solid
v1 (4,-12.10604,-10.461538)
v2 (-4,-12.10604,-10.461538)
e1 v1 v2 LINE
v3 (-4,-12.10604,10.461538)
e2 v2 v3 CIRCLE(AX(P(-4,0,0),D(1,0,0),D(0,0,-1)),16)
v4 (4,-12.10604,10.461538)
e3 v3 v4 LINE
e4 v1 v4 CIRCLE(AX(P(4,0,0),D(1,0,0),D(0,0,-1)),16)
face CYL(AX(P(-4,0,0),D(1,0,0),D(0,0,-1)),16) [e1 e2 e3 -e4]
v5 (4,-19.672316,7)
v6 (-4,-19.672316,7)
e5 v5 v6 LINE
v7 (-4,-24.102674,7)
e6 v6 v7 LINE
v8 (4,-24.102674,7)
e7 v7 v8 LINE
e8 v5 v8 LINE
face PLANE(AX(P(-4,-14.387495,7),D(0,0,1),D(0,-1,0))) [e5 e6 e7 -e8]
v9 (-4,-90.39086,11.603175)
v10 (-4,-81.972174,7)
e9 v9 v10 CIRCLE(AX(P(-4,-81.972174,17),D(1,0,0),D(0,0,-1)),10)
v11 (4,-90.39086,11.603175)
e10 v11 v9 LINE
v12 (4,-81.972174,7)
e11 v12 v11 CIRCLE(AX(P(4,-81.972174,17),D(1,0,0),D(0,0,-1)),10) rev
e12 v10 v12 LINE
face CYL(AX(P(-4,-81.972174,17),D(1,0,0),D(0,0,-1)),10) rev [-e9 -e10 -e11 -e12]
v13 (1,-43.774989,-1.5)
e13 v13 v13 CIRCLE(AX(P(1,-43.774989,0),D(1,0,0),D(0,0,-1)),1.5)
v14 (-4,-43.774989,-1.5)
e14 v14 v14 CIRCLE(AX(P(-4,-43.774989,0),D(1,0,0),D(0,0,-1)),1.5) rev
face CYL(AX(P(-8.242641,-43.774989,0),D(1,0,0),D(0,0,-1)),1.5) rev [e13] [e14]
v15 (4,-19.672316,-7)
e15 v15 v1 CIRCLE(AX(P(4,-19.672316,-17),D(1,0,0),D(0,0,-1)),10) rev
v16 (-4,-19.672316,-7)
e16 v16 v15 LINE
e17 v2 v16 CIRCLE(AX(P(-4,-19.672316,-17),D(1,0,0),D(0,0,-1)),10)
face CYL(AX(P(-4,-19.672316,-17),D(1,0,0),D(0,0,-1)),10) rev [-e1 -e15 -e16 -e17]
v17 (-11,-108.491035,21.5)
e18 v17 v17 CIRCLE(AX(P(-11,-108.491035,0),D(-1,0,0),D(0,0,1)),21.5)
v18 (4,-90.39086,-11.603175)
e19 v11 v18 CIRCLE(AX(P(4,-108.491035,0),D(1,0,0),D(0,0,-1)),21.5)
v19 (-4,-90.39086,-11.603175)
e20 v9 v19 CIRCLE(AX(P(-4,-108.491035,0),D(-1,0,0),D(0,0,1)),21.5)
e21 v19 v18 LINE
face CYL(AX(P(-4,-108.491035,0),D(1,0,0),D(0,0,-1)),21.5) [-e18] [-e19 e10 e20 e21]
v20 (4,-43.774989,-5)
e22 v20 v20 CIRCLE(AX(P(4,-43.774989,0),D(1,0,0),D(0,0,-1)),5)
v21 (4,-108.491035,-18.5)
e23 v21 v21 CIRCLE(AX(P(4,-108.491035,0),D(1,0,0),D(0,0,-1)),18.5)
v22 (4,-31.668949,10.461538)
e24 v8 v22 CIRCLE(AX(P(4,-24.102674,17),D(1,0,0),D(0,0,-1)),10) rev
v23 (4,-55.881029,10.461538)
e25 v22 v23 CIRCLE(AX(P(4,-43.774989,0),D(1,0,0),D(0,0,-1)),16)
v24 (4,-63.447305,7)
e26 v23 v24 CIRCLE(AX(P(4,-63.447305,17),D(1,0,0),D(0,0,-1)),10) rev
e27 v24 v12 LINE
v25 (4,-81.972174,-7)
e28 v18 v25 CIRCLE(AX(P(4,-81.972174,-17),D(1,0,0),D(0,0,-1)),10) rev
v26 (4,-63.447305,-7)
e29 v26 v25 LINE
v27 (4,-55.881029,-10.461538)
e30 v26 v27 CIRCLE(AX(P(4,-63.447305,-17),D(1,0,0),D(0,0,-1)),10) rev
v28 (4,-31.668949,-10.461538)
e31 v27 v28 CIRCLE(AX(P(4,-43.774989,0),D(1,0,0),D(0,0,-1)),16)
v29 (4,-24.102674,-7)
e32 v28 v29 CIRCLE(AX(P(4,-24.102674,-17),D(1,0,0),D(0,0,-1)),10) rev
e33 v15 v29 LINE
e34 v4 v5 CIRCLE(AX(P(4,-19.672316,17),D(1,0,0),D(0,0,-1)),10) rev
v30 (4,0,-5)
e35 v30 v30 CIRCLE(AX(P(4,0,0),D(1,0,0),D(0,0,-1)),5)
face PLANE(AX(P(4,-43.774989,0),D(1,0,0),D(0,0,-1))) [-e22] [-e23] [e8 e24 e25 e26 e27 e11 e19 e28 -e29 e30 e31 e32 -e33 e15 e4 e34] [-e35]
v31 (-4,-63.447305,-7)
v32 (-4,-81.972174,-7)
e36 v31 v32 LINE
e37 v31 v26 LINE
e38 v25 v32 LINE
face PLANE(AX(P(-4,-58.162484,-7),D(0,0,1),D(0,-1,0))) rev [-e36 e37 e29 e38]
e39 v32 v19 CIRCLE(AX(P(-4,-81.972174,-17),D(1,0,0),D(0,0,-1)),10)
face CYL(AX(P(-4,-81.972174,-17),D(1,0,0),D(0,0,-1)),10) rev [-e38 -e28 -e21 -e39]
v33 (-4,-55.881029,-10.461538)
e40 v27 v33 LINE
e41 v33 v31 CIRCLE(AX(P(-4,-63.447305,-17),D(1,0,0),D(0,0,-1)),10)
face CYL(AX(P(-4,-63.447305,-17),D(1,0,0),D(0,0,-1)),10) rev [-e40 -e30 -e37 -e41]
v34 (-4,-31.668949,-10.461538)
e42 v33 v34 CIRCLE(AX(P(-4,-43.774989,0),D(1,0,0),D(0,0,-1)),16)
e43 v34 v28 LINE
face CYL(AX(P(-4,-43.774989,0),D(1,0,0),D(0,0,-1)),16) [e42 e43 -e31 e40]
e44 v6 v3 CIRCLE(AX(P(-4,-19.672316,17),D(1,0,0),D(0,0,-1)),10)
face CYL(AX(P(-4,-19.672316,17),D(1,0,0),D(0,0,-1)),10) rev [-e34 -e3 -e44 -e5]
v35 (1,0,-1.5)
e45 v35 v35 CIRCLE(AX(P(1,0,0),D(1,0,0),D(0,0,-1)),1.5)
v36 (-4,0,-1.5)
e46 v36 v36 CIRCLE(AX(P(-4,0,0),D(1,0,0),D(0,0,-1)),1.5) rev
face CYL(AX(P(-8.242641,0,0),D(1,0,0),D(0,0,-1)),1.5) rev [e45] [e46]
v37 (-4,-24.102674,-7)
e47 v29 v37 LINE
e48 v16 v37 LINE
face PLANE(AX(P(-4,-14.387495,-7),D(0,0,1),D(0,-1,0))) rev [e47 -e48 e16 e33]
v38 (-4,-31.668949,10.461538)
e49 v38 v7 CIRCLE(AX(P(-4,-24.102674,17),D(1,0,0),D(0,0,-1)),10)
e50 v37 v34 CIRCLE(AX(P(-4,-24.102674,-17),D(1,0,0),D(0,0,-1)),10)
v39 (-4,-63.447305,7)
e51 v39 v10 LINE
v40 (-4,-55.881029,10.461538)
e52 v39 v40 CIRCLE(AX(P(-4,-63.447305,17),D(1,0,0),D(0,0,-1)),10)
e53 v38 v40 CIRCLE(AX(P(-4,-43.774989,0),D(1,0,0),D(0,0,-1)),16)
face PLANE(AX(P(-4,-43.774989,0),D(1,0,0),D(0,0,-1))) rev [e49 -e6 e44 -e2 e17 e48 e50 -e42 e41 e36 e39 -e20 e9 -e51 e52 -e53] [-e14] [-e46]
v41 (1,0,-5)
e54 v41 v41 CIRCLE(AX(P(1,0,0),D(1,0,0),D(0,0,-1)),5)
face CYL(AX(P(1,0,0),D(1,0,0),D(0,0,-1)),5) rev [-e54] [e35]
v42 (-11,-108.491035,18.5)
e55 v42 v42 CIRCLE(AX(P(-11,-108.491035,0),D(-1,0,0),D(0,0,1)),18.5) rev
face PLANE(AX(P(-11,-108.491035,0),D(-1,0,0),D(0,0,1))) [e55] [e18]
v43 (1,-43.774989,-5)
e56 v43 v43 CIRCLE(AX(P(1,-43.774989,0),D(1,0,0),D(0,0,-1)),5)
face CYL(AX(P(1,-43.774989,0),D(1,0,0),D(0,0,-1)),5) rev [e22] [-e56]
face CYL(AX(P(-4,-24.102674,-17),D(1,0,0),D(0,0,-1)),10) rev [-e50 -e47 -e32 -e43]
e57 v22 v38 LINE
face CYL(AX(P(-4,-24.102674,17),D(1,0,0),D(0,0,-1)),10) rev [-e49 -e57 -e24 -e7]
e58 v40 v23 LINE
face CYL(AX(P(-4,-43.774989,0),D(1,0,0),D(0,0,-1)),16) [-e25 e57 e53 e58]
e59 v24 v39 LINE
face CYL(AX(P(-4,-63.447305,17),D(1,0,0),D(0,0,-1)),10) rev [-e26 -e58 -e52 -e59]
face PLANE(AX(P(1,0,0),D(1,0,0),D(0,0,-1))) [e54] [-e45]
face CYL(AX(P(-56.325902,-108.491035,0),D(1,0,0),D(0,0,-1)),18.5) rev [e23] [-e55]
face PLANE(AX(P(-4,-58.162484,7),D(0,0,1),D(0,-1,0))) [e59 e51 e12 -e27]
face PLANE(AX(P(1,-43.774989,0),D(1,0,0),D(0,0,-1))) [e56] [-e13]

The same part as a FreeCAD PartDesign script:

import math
import FreeCAD as App
import Part
import Sketcher


def edges_at(feature, points):
    """Names of the edges that pass closest to the given points."""
    edges = feature.Shape.Edges
    near = lambda p: min(range(len(edges)), key=lambda i: edges[i].distToShape(Part.Vertex(*p))[0])
    return sorted({f"Edge{near(p) + 1}" for p in points})

doc = App.newDocument("Part")
params = doc.addObject("Spreadsheet::Sheet", "Params")
for row, (alias, value) in enumerate([
    ("sketch1_radius", "16 mm"),
    ("sketch1_radius2", "21.5 mm"),
    ("sketch1_width", "15 mm"),
    ("sketch1_width2", "30 mm"),
    ("pad1_length", "4 mm"),
    ("pad1_length2", "4 mm"),
    ("fillet_radius", "10 mm"),
    ("sketch2_diameter", "10 mm"),
    ("pocket1_length", "3 mm"),
    ("sketch3_diameter", "3 mm"),
    ("pocket2_length", "5 mm"),
    ("sketch4_diameter", "37 mm"),
    ("pocket3_length", "8 mm"),
    ("sketch5_diameter", "43 mm"),
    ("sketch5_diameter2", "37 mm"),
    ("pad2_length", "7 mm"),
], start=1):
    params.set(f"A{row}", alias)
    params.set(f"B{row}", "=" + value)
    params.setAlias(f"B{row}", alias)

body = doc.addObject("PartDesign::Body", "Body")

# Sketch on YZ plane
sketch1 = doc.addObject("Sketcher::SketchObject", "Sketch")
body.addObject(sketch1)
sketch1.AttachmentSupport = (doc.YZ_Plane, [""])
sketch1.MapMode = "FlatFace"
sketch1.addGeometry(Part.LineSegment(App.Vector(-14, 7, 0), App.Vector(-29, 7, 0)), False)
sketch1.addGeometry(Part.ArcOfCircle(Part.Circle(App.Vector(-44, 0, 0), App.Vector(0, 0, 1), 16), math.radians(26), math.radians(154)), False)
sketch1.addGeometry(Part.LineSegment(App.Vector(-58, 7, 0), App.Vector(-88, 7, 0)), False)
sketch1.addGeometry(Part.ArcOfCircle(Part.Circle(App.Vector(-108, 0, 0), App.Vector(0, 0, 1), 22), math.radians(19), math.radians(341)), False)
sketch1.addGeometry(Part.LineSegment(App.Vector(-88, -7, 0), App.Vector(-58, -7, 0)), False)
sketch1.addGeometry(Part.ArcOfCircle(Part.Circle(App.Vector(-44, 0, 0), App.Vector(0, 0, 1), 16), math.radians(-154), math.radians(-26)), False)
sketch1.addGeometry(Part.LineSegment(App.Vector(-29, -7, 0), App.Vector(-14, -7, 0)), False)
sketch1.addGeometry(Part.ArcOfCircle(Part.Circle(App.Vector(0, 0, 0), App.Vector(0, 0, 1), 16), math.radians(-154), math.radians(154)), False)
sketch1.addConstraint(Sketcher.Constraint("Coincident", 0, 2, 1, 1))
sketch1.addConstraint(Sketcher.Constraint("Coincident", 1, 2, 2, 1))
sketch1.addConstraint(Sketcher.Constraint("Coincident", 2, 2, 3, 1))
sketch1.addConstraint(Sketcher.Constraint("Coincident", 3, 2, 4, 1))
sketch1.addConstraint(Sketcher.Constraint("Coincident", 4, 2, 5, 1))
sketch1.addConstraint(Sketcher.Constraint("Coincident", 5, 2, 6, 1))
sketch1.addConstraint(Sketcher.Constraint("Coincident", 6, 2, 7, 1))
sketch1.addConstraint(Sketcher.Constraint("Coincident", 7, 2, 0, 1))
sketch1.addConstraint(Sketcher.Constraint("Horizontal", 0))
sketch1.addConstraint(Sketcher.Constraint("Horizontal", 2))
sketch1.addConstraint(Sketcher.Constraint("Horizontal", 4))
sketch1.addConstraint(Sketcher.Constraint("Horizontal", 6))
sketch1.addConstraint(Sketcher.Constraint("Coincident", 7, 3, -1, 1))
sketch1.addConstraint(Sketcher.Constraint("Coincident", 5, 3, 1, 3))
sketch1.addConstraint(Sketcher.Constraint("Equal", 1, 5))
sketch1.addConstraint(Sketcher.Constraint("Equal", 5, 7))
sketch1.addConstraint(Sketcher.Constraint("Symmetric", 2, 2, 3, 2, -1))
sketch1.addConstraint(Sketcher.Constraint("Symmetric", 0, 2, 5, 2, -1))
sketch1.addConstraint(Sketcher.Constraint("Horizontal", 0, 2, 1, 2))
sketch1.addConstraint(Sketcher.Constraint("Radius", 1, 16.0))
sketch1.addConstraint(Sketcher.Constraint("Radius", 3, 21.5))
sketch1.addConstraint(Sketcher.Constraint("DistanceX", 0, 2, 0, 1, 15.0))
sketch1.addConstraint(Sketcher.Constraint("DistanceX", 2, 2, 2, 1, 30.0))
sketch1.addConstraint(Sketcher.Constraint("DistanceY", -1, 1, 0, 2, 7.0))
sketch1.setExpression("Constraints[19]", "Params.sketch1_radius")
sketch1.setExpression("Constraints[20]", "Params.sketch1_radius2")
sketch1.setExpression("Constraints[21]", "Params.sketch1_width")
sketch1.setExpression("Constraints[22]", "Params.sketch1_width2")
pad1 = doc.addObject("PartDesign::Pad", "Pad")
body.addObject(pad1)
pad1.Profile = sketch1
pad1.Type = "TwoLengths"
pad1.setExpression("Length", "Params.pad1_length")
pad1.setExpression("Length2", "Params.pad1_length2")
doc.recompute()

fillet = doc.addObject("PartDesign::Fillet", "Fillet")
body.addObject(fillet)
fillet.Base = (pad1, edges_at(pad1, [
    (0, -29.387, 7),
    (0, -14.387, 7),
    (0, -14.387, -7),
    (0, -29.387, -7),
    (0, -58.162, -7),
    (0, -88.162, -7),
    (0, -88.162, 7),
    (0, -58.162, 7),
]))
fillet.setExpression("Radius", "Params.fillet_radius")

# Sketch on YZ plane
sketch2 = doc.addObject("Sketcher::SketchObject", "Sketch001")
body.addObject(sketch2)
sketch2.AttachmentSupport = (doc.YZ_Plane, [""])
sketch2.MapMode = "FlatFace"
sketch2.AttachmentOffset = App.Placement(App.Vector(0, 0, 4), App.Rotation())
sketch2.addGeometry(Part.Circle(App.Vector(0, 0, 0), App.Vector(0, 0, 1), 5), False)
sketch2.addGeometry(Part.Circle(App.Vector(-44, 0, 0), App.Vector(0, 0, 1), 5), False)
sketch2.addConstraint(Sketcher.Constraint("Coincident", 0, 3, -1, 1))
sketch2.addConstraint(Sketcher.Constraint("Equal", 0, 1))
sketch2.addConstraint(Sketcher.Constraint("PointOnObject", 1, 3, -1))
sketch2.addConstraint(Sketcher.Constraint("Diameter", 0, 10.0))
sketch2.addConstraint(Sketcher.Constraint("DistanceX", 1, 3, -1, 1, 43.774989))
sketch2.setExpression("Constraints[3]", "Params.sketch2_diameter")
pocket1 = doc.addObject("PartDesign::Pocket", "Pocket")
body.addObject(pocket1)
pocket1.Profile = sketch2
pocket1.setExpression("Length", "Params.pocket1_length")

# Sketch on YZ plane
sketch3 = doc.addObject("Sketcher::SketchObject", "Sketch002")
body.addObject(sketch3)
sketch3.AttachmentSupport = (doc.YZ_Plane, [""])
sketch3.MapMode = "FlatFace"
sketch3.AttachmentOffset = App.Placement(App.Vector(0, 0, 1), App.Rotation())
sketch3.addGeometry(Part.Circle(App.Vector(0, 0, 0), App.Vector(0, 0, 1), 1.5), False)
sketch3.addGeometry(Part.Circle(App.Vector(-43.8, 0, 0), App.Vector(0, 0, 1), 1.5), False)
sketch3.addConstraint(Sketcher.Constraint("Coincident", 0, 3, -1, 1))
sketch3.addConstraint(Sketcher.Constraint("Equal", 0, 1))
sketch3.addConstraint(Sketcher.Constraint("PointOnObject", 1, 3, -1))
sketch3.addConstraint(Sketcher.Constraint("Diameter", 0, 3.0))
sketch3.addConstraint(Sketcher.Constraint("DistanceX", 1, 3, -1, 1, 43.774989))
sketch3.setExpression("Constraints[3]", "Params.sketch3_diameter")
pocket2 = doc.addObject("PartDesign::Pocket", "Pocket001")
body.addObject(pocket2)
pocket2.Profile = sketch3
pocket2.setExpression("Length", "Params.pocket2_length")

# Sketch on YZ plane
sketch4 = doc.addObject("Sketcher::SketchObject", "Sketch003")
body.addObject(sketch4)
sketch4.AttachmentSupport = (doc.YZ_Plane, [""])
sketch4.MapMode = "FlatFace"
sketch4.AttachmentOffset = App.Placement(App.Vector(0, 0, 4), App.Rotation())
sketch4.addGeometry(Part.Circle(App.Vector(-108, 0, 0), App.Vector(0, 0, 1), 18), False)
sketch4.addConstraint(Sketcher.Constraint("PointOnObject", 0, 3, -1))
sketch4.addConstraint(Sketcher.Constraint("Diameter", 0, 37.0))
sketch4.addConstraint(Sketcher.Constraint("DistanceX", 0, 3, -1, 1, 108.491035))
sketch4.setExpression("Constraints[1]", "Params.sketch4_diameter")
pocket3 = doc.addObject("PartDesign::Pocket", "Pocket002")
body.addObject(pocket3)
pocket3.Profile = sketch4
pocket3.setExpression("Length", "Params.pocket3_length")

# Sketch on YZ plane
sketch5 = doc.addObject("Sketcher::SketchObject", "Sketch004")
body.addObject(sketch5)
sketch5.AttachmentSupport = (doc.YZ_Plane, [""])
sketch5.MapMode = "FlatFace"
sketch5.AttachmentOffset = App.Placement(App.Vector(0, 0, -4), App.Rotation())
sketch5.addGeometry(Part.Circle(App.Vector(-108, 0, 0), App.Vector(0, 0, 1), 22), False)
sketch5.addGeometry(Part.Circle(App.Vector(-108, 0, 0), App.Vector(0, 0, 1), 18), False)
sketch5.addConstraint(Sketcher.Constraint("Coincident", 1, 3, 0, 3))
sketch5.addConstraint(Sketcher.Constraint("PointOnObject", 0, 3, -1))
sketch5.addConstraint(Sketcher.Constraint("Diameter", 0, 43.0))
sketch5.addConstraint(Sketcher.Constraint("Diameter", 1, 37.0))
sketch5.addConstraint(Sketcher.Constraint("DistanceX", 0, 3, -1, 1, 108.491035))
sketch5.setExpression("Constraints[2]", "Params.sketch5_diameter")
sketch5.setExpression("Constraints[3]", "Params.sketch5_diameter2")
pad2 = doc.addObject("PartDesign::Pad", "Pad001")
body.addObject(pad2)
pad2.Profile = sketch5
pad2.setExpression("Length", "Params.pad2_length")
pad2.Reversed = True

doc.recompute()
